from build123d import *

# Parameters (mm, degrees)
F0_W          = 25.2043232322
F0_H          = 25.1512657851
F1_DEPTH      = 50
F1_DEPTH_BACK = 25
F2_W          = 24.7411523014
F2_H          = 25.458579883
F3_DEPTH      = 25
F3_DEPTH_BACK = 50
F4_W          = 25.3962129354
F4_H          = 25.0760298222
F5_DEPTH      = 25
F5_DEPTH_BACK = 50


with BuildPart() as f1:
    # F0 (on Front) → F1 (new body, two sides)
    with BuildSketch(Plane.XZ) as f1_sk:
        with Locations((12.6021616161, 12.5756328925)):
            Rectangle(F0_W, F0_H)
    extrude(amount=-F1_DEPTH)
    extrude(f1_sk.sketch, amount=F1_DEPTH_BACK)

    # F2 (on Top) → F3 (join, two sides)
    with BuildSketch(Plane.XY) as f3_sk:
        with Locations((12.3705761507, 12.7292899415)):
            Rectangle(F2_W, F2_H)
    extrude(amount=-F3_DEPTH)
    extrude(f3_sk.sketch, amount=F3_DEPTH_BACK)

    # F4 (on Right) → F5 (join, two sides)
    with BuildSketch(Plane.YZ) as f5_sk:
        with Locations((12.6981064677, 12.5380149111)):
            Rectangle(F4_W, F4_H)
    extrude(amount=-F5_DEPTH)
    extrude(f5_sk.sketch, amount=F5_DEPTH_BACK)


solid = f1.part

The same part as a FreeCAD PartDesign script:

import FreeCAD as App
import Part
import Sketcher

doc = App.newDocument("Part")
body = doc.addObject("PartDesign::Body", "Body")

sketch1 = body.newObject("Sketcher::SketchObject", "Sketch")
sketch1.AttachmentSupport = (doc.getObject("XZ_Plane"), [""])
sketch1.MapMode = "FlatFace"
sketch1.addGeometry([
    Part.LineSegment(App.Vector(0, 25.151266, 0), App.Vector(0, 0, 0)),
    Part.LineSegment(App.Vector(0, 0, 0), App.Vector(25.204323, 0, 0)),
    Part.LineSegment(App.Vector(25.204323, 0, 0), App.Vector(25.204323, 25.151266, 0)),
    Part.LineSegment(App.Vector(25.204323, 25.151266, 0), App.Vector(0, 25.151266, 0)),
], False)
sketch1.addConstraint([
    Sketcher.Constraint("Coincident", 0, 2, 1, 1),
    Sketcher.Constraint("Coincident", 1, 2, 2, 1),
    Sketcher.Constraint("Coincident", 2, 2, 3, 1),
    Sketcher.Constraint("Coincident", 3, 2, 0, 1),
    Sketcher.Constraint("Vertical", 0),
    Sketcher.Constraint("Horizontal", 1),
    Sketcher.Constraint("Vertical", 2),
    Sketcher.Constraint("Horizontal", 3),
    Sketcher.Constraint("Coincident", 0, 2, -1, 1),
    Sketcher.Constraint("DistanceX", 1, 1, 1, 2, 25.204323),
    Sketcher.Constraint("DistanceY", 0, 2, 0, 1, 25.151266),
])
pad1 = body.newObject("PartDesign::Pad", "Pad")
pad1.Profile = sketch1
pad1.Type = "TwoLengths"
pad1.Length = 50
pad1.Length2 = 25
pad1.Reversed = True

sketch2 = body.newObject("Sketcher::SketchObject", "Sketch001")
sketch2.AttachmentSupport = (doc.getObject("XY_Plane"), [""])
sketch2.MapMode = "FlatFace"
sketch2.addGeometry([
    Part.LineSegment(App.Vector(0, 25.45858, 0), App.Vector(0, 0, 0)),
    Part.LineSegment(App.Vector(0, 0, 0), App.Vector(24.741152, 0, 0)),
    Part.LineSegment(App.Vector(24.741152, 0, 0), App.Vector(24.741152, 25.45858, 0)),
    Part.LineSegment(App.Vector(24.741152, 25.45858, 0), App.Vector(0, 25.45858, 0)),
], False)
sketch2.addConstraint([
    Sketcher.Constraint("Coincident", 0, 2, 1, 1),
    Sketcher.Constraint("Coincident", 1, 2, 2, 1),
    Sketcher.Constraint("Coincident", 2, 2, 3, 1),
    Sketcher.Constraint("Coincident", 3, 2, 0, 1),
    Sketcher.Constraint("Vertical", 0),
    Sketcher.Constraint("Horizontal", 1),
    Sketcher.Constraint("Vertical", 2),
    Sketcher.Constraint("Horizontal", 3),
    Sketcher.Constraint("Coincident", 0, 2, -1, 1),
    Sketcher.Constraint("DistanceY", 0, 2, 0, 1, 25.45858),
    Sketcher.Constraint("DistanceX", 1, 1, 1, 2, 24.741152),
])
pad2 = body.newObject("PartDesign::Pad", "Pad001")
pad2.Profile = sketch2
pad2.Type = "TwoLengths"
pad2.Length = 25
pad2.Length2 = 50
pad2.Reversed = True

sketch3 = body.newObject("Sketcher::SketchObject", "Sketch002")
sketch3.AttachmentSupport = (doc.getObject("YZ_Plane"), [""])
sketch3.MapMode = "FlatFace"
sketch3.addGeometry([
    Part.LineSegment(App.Vector(0, 25.07603, 0), App.Vector(0, 0, 0)),
    Part.LineSegment(App.Vector(0, 0, 0), App.Vector(25.396213, 0, 0)),
    Part.LineSegment(App.Vector(25.396213, 0, 0), App.Vector(25.396213, 25.07603, 0)),
    Part.LineSegment(App.Vector(25.396213, 25.07603, 0), App.Vector(0, 25.07603, 0)),
], False)
sketch3.addConstraint([
    Sketcher.Constraint("Coincident", 0, 2, 1, 1),
    Sketcher.Constraint("Coincident", 1, 2, 2, 1),
    Sketcher.Constraint("Coincident", 2, 2, 3, 1),
    Sketcher.Constraint("Coincident", 3, 2, 0, 1),
    Sketcher.Constraint("Vertical", 0),
    Sketcher.Constraint("Horizontal", 1),
    Sketcher.Constraint("Vertical", 2),
    Sketcher.Constraint("Horizontal", 3),
    Sketcher.Constraint("Coincident", 0, 2, -1, 1),
    Sketcher.Constraint("DistanceY", 0, 2, 0, 1, 25.07603),
    Sketcher.Constraint("DistanceX", 1, 1, 1, 2, 25.396213),
])
pad3 = body.newObject("PartDesign::Pad", "Pad002")
pad3.Profile = sketch3
pad3.Type = "TwoLengths"
pad3.Length = 25
pad3.Length2 = 50
pad3.Reversed = True

doc.recompute()
